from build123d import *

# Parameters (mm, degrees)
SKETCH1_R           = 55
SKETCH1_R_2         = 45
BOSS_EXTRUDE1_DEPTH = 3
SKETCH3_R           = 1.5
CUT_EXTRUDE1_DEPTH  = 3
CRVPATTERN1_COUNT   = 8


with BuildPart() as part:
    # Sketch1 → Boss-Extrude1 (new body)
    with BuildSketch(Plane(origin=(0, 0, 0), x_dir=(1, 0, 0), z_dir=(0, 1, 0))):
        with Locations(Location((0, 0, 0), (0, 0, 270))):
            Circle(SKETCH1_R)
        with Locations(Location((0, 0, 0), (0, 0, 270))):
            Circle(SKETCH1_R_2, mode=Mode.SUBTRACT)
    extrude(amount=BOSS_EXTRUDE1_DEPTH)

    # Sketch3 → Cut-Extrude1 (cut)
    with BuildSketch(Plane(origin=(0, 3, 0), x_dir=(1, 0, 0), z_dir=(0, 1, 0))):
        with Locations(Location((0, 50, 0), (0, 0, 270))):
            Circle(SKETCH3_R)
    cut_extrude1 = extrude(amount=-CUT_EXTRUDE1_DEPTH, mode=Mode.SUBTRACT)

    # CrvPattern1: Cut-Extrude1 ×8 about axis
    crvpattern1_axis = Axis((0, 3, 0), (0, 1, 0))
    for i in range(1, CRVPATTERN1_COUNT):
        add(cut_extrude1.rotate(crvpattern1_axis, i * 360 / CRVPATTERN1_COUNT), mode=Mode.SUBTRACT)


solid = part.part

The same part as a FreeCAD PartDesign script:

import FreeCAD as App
import Part
import Sketcher
Q = App.Units.Quantity

doc = App.newDocument("Part")
body = doc.addObject("PartDesign::Body", "Body")

sketch1 = doc.addObject("Sketcher::SketchObject", "Sketch")
body.addObject(sketch1)
sketch1.AttachmentSupport = (doc.XZ_Plane, [""])
sketch1.MapMode = "FlatFace"
sketch1.addGeometry([
    Part.Circle(App.Vector(0, 0, 0), App.Vector(0, 0, 1), 55),
    Part.Circle(App.Vector(0, 0, 0), App.Vector(0, 0, 1), 45),
], False)
sketch1.addConstraint([
    Sketcher.Constraint("Coincident", 0, 3, -1, 1),
    Sketcher.Constraint("Coincident", 1, 3, -1, 1),
    Sketcher.Constraint("Diameter", 0, Q("110 mm")),
    Sketcher.Constraint("Diameter", 1, Q("90 mm")),
])
pad1 = doc.addObject("PartDesign::Pad", "Pad")
body.addObject(pad1)
pad1.Profile = sketch1
pad1.Length = 3
pad1.Reversed = True

sketch2 = doc.addObject("Sketcher::SketchObject", "Sketch001")
body.addObject(sketch2)
sketch2.AttachmentSupport = (doc.XZ_Plane, [""])
sketch2.MapMode = "FlatFace"
sketch2.AttachmentOffset = App.Placement(App.Vector(0, 0, -3), App.Rotation())
sketch2.addGeometry(Part.Circle(App.Vector(0, -50, 0), App.Vector(0, 0, 1), 1.5), False)
sketch2.addConstraint([
    Sketcher.Constraint("PointOnObject", 0, 3, -2),
    Sketcher.Constraint("Diameter", 0, Q("3 mm")),
    Sketcher.Constraint("DistanceY", 0, 3, -1, 1, Q("50 mm")),
])
pocket1 = doc.addObject("PartDesign::Pocket", "Pocket")
body.addObject(pocket1)
pocket1.Profile = sketch2
pocket1.Length = 3
pocket1.Reversed = True
doc.recompute()

polarpattern = doc.addObject("PartDesign::PolarPattern", "PolarPattern")
body.addObject(polarpattern)
polarpattern.Originals = [pocket1]
polarpattern.Axis = (doc.Y_Axis, [""])
polarpattern.Angle = 360
polarpattern.Occurrences = 8
body.Tip = polarpattern

doc.recompute()
